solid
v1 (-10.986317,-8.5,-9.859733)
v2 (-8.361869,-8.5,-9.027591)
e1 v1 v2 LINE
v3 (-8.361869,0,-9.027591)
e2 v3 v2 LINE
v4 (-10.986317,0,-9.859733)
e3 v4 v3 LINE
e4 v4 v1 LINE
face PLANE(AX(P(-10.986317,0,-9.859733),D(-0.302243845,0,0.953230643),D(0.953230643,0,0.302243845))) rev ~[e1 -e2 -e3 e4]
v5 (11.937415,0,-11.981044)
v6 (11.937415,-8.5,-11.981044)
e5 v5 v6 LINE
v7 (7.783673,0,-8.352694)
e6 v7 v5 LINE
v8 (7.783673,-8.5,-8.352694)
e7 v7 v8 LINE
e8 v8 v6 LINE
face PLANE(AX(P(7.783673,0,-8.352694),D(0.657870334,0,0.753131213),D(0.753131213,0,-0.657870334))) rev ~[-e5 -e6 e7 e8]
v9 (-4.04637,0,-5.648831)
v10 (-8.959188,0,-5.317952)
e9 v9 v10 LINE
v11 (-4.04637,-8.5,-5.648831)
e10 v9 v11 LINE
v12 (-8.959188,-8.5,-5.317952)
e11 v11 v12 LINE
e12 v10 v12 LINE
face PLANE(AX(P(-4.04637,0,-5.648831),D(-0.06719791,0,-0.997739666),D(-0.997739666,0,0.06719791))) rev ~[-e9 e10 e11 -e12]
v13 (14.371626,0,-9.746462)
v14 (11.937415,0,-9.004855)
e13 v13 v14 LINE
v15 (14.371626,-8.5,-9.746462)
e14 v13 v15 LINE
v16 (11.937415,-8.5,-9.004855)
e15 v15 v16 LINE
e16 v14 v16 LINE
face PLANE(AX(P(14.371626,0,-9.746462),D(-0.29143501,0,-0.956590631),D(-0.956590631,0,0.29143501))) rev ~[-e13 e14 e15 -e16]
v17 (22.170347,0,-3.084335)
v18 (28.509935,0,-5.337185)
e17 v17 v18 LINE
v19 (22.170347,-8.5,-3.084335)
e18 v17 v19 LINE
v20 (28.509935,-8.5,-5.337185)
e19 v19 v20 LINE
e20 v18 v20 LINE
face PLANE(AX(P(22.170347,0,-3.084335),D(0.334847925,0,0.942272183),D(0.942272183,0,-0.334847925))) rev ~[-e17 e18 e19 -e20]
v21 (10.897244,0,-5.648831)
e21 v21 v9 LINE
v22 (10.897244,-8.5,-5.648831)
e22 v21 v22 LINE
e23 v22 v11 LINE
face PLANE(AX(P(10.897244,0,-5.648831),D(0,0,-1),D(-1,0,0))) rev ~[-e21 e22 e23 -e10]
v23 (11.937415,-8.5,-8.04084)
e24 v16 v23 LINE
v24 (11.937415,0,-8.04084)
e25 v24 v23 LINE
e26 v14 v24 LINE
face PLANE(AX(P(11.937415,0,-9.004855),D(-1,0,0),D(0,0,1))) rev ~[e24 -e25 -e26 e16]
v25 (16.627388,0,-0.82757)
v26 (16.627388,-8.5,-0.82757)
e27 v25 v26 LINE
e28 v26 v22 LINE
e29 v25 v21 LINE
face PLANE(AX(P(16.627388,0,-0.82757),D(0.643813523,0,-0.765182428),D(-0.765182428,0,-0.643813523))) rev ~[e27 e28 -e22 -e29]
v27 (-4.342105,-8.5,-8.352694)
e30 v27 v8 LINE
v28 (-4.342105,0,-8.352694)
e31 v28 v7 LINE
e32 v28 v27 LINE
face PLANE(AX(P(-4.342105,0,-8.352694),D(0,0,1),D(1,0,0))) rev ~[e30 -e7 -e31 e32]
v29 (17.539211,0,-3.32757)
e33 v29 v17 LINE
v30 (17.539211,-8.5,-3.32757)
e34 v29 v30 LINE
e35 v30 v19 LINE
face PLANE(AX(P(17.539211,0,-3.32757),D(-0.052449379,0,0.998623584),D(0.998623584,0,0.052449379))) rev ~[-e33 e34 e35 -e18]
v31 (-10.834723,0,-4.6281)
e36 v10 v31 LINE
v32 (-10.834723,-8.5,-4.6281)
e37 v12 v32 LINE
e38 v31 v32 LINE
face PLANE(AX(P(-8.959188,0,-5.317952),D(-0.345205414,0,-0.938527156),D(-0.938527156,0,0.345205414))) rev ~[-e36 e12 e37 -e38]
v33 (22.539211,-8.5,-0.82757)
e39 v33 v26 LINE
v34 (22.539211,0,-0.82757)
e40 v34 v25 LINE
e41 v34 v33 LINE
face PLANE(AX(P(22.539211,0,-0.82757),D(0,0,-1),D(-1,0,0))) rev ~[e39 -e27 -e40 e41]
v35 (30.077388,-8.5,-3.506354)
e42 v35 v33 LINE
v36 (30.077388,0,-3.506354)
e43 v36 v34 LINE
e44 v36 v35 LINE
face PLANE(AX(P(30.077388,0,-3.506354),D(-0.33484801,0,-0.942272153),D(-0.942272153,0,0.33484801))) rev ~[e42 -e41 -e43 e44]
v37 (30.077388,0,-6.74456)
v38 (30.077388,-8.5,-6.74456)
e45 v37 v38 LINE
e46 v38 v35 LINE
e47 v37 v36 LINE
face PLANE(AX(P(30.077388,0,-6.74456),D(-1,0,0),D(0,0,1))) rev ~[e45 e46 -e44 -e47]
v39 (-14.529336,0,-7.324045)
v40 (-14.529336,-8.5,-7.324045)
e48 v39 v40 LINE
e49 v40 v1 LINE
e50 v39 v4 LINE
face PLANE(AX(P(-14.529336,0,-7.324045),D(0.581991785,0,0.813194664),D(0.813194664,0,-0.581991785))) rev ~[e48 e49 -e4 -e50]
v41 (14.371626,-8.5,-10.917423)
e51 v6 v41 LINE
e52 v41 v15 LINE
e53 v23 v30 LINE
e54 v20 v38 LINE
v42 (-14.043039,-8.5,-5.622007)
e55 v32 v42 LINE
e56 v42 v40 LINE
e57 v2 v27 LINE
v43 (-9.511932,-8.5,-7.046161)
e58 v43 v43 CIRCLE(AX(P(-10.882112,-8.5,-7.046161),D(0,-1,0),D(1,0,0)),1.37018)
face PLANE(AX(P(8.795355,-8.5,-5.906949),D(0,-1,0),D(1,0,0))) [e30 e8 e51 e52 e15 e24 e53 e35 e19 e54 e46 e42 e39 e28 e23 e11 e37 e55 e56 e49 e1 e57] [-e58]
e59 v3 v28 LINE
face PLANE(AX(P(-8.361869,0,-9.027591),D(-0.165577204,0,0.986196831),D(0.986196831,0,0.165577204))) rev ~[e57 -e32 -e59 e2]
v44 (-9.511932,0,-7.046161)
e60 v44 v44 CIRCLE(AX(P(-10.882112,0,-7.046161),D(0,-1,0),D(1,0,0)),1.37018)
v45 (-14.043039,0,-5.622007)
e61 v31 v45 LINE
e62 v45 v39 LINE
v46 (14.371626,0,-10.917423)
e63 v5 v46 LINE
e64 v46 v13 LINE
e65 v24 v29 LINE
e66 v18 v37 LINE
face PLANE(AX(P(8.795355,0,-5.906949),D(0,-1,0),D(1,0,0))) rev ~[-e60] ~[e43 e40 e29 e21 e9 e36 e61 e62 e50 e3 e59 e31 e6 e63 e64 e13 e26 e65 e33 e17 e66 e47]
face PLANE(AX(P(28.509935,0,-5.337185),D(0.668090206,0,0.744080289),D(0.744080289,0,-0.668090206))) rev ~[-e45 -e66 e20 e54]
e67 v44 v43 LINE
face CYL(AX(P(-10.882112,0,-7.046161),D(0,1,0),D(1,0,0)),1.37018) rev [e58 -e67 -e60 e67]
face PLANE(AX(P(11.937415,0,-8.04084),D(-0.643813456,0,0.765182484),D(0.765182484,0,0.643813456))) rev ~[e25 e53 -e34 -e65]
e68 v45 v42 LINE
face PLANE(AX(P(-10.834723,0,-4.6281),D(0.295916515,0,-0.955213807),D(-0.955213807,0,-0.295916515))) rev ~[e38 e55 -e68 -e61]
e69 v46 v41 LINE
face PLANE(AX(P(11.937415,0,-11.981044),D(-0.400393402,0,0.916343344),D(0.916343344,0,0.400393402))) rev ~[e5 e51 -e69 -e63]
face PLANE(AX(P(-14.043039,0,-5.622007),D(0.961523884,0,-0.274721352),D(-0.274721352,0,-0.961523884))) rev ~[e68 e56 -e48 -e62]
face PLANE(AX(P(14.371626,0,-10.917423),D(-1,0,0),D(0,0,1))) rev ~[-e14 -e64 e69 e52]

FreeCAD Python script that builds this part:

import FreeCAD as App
import Part
import Sketcher

V = App.Vector
Q = App.Units.Quantity

doc = App.newDocument("Part")
body = doc.addObject("PartDesign::Body", "Body")

sketch1 = body.newObject("Sketcher::SketchObject", "Sketch")
sketch1.AttachmentSupport = (doc.getObject("XZ_Plane"), [""])
sketch1.MapMode = "FlatFace"
sketch1.addGeometry([
    Part.LineSegment(V(-8.959188, -5.317952, 0), V(-10.834723, -4.6281, 0)),
    Part.LineSegment(V(-10.834723, -4.6281, 0), V(-14.043039, -5.622007, 0)),
    Part.LineSegment(V(-14.043039, -5.622007, 0), V(-14.529336, -7.324045, 0)),
    Part.LineSegment(V(-14.529336, -7.324045, 0), V(-10.986317, -9.859733, 0)),
    Part.LineSegment(V(-10.986317, -9.859733, 0), V(-8.361869, -9.027591, 0)),
    Part.LineSegment(V(-8.361869, -9.027591, 0), V(-4.342105, -8.352694, 0)),
    Part.LineSegment(V(-4.342105, -8.352694, 0), V(7.783673, -8.352694, 0)),
    Part.LineSegment(V(7.783673, -8.352694, 0), V(11.937415, -11.981044, 0)),
    Part.LineSegment(V(11.937415, -11.981044, 0), V(14.371626, -10.917423, 0)),
    Part.LineSegment(V(14.371626, -10.917423, 0), V(14.371626, -9.746462, 0)),
    Part.LineSegment(V(14.371626, -9.746462, 0), V(11.937415, -9.004855, 0)),
    Part.LineSegment(V(11.937415, -9.004855, 0), V(11.937415, -8.04084, 0)),
    Part.LineSegment(V(11.937415, -8.04084, 0), V(17.539211, -3.32757, 0)),
    Part.LineSegment(V(17.539211, -3.32757, 0), V(22.170347, -3.084335, 0)),
    Part.LineSegment(V(22.170347, -3.084335, 0), V(28.509935, -5.337185, 0)),
    Part.LineSegment(V(28.509935, -5.337185, 0), V(30.077388, -6.74456, 0)),
    Part.LineSegment(V(30.077388, -6.74456, 0), V(30.077388, -3.506354, 0)),
    Part.LineSegment(V(30.077388, -3.506354, 0), V(22.539211, -0.82757, 0)),
    Part.LineSegment(V(22.539211, -0.82757, 0), V(16.627388, -0.82757, 0)),
    Part.LineSegment(V(16.627388, -0.82757, 0), V(10.897244, -5.648831, 0)),
    Part.LineSegment(V(10.897244, -5.648831, 0), V(-4.04637, -5.648831, 0)),
    Part.LineSegment(V(-4.04637, -5.648831, 0), V(-8.959188, -5.317952, 0)),
    Part.Circle(V(-10.882112, -7.046161, 0), V(0, 0, 1), 1.37018),
], False)
sketch1.addConstraint([
    Sketcher.Constraint("Coincident", 0, 2, 1, 1),
    Sketcher.Constraint("Coincident", 1, 2, 2, 1),
    Sketcher.Constraint("Coincident", 2, 2, 3, 1),
    Sketcher.Constraint("Coincident", 3, 2, 4, 1),
    Sketcher.Constraint("Coincident", 4, 2, 5, 1),
    Sketcher.Constraint("Coincident", 5, 2, 6, 1),
    Sketcher.Constraint("Coincident", 6, 2, 7, 1),
    Sketcher.Constraint("Coincident", 7, 2, 8, 1),
    Sketcher.Constraint("Coincident", 8, 2, 9, 1),
    Sketcher.Constraint("Coincident", 9, 2, 10, 1),
    Sketcher.Constraint("Coincident", 10, 2, 11, 1),
    Sketcher.Constraint("Coincident", 11, 2, 12, 1),
    Sketcher.Constraint("Coincident", 12, 2, 13, 1),
    Sketcher.Constraint("Coincident", 13, 2, 14, 1),
    Sketcher.Constraint("Coincident", 14, 2, 15, 1),
    Sketcher.Constraint("Coincident", 15, 2, 16, 1),
    Sketcher.Constraint("Coincident", 16, 2, 17, 1),
    Sketcher.Constraint("Coincident", 17, 2, 18, 1),
    Sketcher.Constraint("Coincident", 18, 2, 19, 1),
    Sketcher.Constraint("Coincident", 19, 2, 20, 1),
    Sketcher.Constraint("Coincident", 20, 2, 21, 1),
    Sketcher.Constraint("Coincident", 21, 2, 0, 1),
    Sketcher.Constraint("Horizontal", 6),
    Sketcher.Constraint("Vertical", 9),
    Sketcher.Constraint("Vertical", 11),
    Sketcher.Constraint("Vertical", 16),
    Sketcher.Constraint("Horizontal", 18),
    Sketcher.Constraint("Horizontal", 20),
    Sketcher.Constraint("Distance", 17, Q("8 mm")),
    Sketcher.Constraint("DistanceX", 12, 2, 17, 2, Q("5 mm")),
    Sketcher.Constraint("DistanceY", 12, 2, 17, 2, Q("2.5 mm")),
    Sketcher.Constraint("Diameter", 22, Q("2.74036 mm")),
    Sketcher.Constraint("Distance", 19, Q("7.488599 mm")),
    Sketcher.Constraint("DistanceY", 9, 1, 9, 2, Q("1.170961 mm")),
    Sketcher.Constraint("DistanceY", 0, 2, -1, 1, Q("4.6281 mm")),
    Sketcher.Constraint("DistanceY", 9, 2, 15, 2, Q("3.001902 mm")),
    Sketcher.Constraint("DistanceX", 4, 2, 20, 2, Q("4.315499 mm")),
    Sketcher.Constraint("Distance", 0, Q("1.998381 mm")),
    Sketcher.Constraint("Distance", 1, Q("3.358741 mm")),
    Sketcher.Constraint("Distance", 8, Q("2.65644 mm")),
    Sketcher.Constraint("Distance", 13, Q("4.637519 mm")),
    Sketcher.Constraint("Distance", 14, Q("6.72798 mm")),
    Sketcher.Constraint("DistanceX", 6, 1, 6, 2, Q("12.125778 mm")),
    Sketcher.Constraint("DistanceX", 18, 2, 18, 1, Q("5.911823 mm")),
    Sketcher.Constraint("DistanceX", 20, 2, 20, 1, Q("14.943614 mm")),
    Sketcher.Constraint("DistanceY", 11, 1, 11, 2, Q("0.964015 mm")),
    Sketcher.Constraint("DistanceY", 16, 1, 16, 2, Q("3.238206 mm")),
    Sketcher.Constraint("DistanceX", 22, 3, -1, 1, Q("10.882112 mm")),
    Sketcher.Constraint("DistanceY", 22, 3, -1, 1, Q("7.046161 mm")),
    Sketcher.Constraint("DistanceX", 1, 2, -1, 1, Q("14.043039 mm")),
    Sketcher.Constraint("DistanceX", 4, 2, -1, 1, Q("8.361869 mm")),
    Sketcher.Constraint("DistanceY", 4, 2, -1, 1, Q("9.027591 mm")),
    Sketcher.Constraint("DistanceY", 9, 2, -1, 1, Q("9.746462 mm")),
    Sketcher.Constraint("DistanceY", 11, 2, -1, 1, Q("8.04084 mm")),
    Sketcher.Constraint("DistanceX", -1, 1, 12, 2, Q("17.539211 mm")),
    Sketcher.Constraint("DistanceY", 12, 2, -1, 1, Q("3.32757 mm")),
    Sketcher.Constraint("DistanceX", 22, 3, 0, 2, Q("0.047389 mm")),
    Sketcher.Constraint("DistanceX", 2, 2, 3, 2, Q("3.543019 mm")),
    Sketcher.Constraint("DistanceY", 3, 2, 2, 2, Q("2.535688 mm")),
    Sketcher.Constraint("DistanceX", 3, 2, 5, 2, Q("6.644212 mm")),
    Sketcher.Constraint("DistanceY", 3, 2, 5, 2, Q("1.507039 mm")),
    Sketcher.Constraint("DistanceX", 0, 2, 5, 2, Q("6.492618 mm")),
    Sketcher.Constraint("DistanceX", 6, 2, 7, 2, Q("4.153742 mm")),
    Sketcher.Constraint("DistanceY", 7, 2, 6, 2, Q("3.62835 mm")),
    Sketcher.Constraint("DistanceX", 7, 2, 8, 2, Q("2.434211 mm")),
    Sketcher.Constraint("DistanceX", 10, 2, 9, 2, Q("2.434211 mm")),
    Sketcher.Constraint("DistanceX", 9, 2, 13, 2, Q("7.798721 mm")),
    Sketcher.Constraint("DistanceY", 14, 2, 13, 2, Q("2.25285 mm")),
    Sketcher.Constraint("DistanceY", 22, 3, 21, 2, Q("1.728209 mm")),
])
pad1 = body.newObject("PartDesign::Pad", "Pad")
pad1.Profile = sketch1
pad1.Length = 8.5

doc.recompute()
